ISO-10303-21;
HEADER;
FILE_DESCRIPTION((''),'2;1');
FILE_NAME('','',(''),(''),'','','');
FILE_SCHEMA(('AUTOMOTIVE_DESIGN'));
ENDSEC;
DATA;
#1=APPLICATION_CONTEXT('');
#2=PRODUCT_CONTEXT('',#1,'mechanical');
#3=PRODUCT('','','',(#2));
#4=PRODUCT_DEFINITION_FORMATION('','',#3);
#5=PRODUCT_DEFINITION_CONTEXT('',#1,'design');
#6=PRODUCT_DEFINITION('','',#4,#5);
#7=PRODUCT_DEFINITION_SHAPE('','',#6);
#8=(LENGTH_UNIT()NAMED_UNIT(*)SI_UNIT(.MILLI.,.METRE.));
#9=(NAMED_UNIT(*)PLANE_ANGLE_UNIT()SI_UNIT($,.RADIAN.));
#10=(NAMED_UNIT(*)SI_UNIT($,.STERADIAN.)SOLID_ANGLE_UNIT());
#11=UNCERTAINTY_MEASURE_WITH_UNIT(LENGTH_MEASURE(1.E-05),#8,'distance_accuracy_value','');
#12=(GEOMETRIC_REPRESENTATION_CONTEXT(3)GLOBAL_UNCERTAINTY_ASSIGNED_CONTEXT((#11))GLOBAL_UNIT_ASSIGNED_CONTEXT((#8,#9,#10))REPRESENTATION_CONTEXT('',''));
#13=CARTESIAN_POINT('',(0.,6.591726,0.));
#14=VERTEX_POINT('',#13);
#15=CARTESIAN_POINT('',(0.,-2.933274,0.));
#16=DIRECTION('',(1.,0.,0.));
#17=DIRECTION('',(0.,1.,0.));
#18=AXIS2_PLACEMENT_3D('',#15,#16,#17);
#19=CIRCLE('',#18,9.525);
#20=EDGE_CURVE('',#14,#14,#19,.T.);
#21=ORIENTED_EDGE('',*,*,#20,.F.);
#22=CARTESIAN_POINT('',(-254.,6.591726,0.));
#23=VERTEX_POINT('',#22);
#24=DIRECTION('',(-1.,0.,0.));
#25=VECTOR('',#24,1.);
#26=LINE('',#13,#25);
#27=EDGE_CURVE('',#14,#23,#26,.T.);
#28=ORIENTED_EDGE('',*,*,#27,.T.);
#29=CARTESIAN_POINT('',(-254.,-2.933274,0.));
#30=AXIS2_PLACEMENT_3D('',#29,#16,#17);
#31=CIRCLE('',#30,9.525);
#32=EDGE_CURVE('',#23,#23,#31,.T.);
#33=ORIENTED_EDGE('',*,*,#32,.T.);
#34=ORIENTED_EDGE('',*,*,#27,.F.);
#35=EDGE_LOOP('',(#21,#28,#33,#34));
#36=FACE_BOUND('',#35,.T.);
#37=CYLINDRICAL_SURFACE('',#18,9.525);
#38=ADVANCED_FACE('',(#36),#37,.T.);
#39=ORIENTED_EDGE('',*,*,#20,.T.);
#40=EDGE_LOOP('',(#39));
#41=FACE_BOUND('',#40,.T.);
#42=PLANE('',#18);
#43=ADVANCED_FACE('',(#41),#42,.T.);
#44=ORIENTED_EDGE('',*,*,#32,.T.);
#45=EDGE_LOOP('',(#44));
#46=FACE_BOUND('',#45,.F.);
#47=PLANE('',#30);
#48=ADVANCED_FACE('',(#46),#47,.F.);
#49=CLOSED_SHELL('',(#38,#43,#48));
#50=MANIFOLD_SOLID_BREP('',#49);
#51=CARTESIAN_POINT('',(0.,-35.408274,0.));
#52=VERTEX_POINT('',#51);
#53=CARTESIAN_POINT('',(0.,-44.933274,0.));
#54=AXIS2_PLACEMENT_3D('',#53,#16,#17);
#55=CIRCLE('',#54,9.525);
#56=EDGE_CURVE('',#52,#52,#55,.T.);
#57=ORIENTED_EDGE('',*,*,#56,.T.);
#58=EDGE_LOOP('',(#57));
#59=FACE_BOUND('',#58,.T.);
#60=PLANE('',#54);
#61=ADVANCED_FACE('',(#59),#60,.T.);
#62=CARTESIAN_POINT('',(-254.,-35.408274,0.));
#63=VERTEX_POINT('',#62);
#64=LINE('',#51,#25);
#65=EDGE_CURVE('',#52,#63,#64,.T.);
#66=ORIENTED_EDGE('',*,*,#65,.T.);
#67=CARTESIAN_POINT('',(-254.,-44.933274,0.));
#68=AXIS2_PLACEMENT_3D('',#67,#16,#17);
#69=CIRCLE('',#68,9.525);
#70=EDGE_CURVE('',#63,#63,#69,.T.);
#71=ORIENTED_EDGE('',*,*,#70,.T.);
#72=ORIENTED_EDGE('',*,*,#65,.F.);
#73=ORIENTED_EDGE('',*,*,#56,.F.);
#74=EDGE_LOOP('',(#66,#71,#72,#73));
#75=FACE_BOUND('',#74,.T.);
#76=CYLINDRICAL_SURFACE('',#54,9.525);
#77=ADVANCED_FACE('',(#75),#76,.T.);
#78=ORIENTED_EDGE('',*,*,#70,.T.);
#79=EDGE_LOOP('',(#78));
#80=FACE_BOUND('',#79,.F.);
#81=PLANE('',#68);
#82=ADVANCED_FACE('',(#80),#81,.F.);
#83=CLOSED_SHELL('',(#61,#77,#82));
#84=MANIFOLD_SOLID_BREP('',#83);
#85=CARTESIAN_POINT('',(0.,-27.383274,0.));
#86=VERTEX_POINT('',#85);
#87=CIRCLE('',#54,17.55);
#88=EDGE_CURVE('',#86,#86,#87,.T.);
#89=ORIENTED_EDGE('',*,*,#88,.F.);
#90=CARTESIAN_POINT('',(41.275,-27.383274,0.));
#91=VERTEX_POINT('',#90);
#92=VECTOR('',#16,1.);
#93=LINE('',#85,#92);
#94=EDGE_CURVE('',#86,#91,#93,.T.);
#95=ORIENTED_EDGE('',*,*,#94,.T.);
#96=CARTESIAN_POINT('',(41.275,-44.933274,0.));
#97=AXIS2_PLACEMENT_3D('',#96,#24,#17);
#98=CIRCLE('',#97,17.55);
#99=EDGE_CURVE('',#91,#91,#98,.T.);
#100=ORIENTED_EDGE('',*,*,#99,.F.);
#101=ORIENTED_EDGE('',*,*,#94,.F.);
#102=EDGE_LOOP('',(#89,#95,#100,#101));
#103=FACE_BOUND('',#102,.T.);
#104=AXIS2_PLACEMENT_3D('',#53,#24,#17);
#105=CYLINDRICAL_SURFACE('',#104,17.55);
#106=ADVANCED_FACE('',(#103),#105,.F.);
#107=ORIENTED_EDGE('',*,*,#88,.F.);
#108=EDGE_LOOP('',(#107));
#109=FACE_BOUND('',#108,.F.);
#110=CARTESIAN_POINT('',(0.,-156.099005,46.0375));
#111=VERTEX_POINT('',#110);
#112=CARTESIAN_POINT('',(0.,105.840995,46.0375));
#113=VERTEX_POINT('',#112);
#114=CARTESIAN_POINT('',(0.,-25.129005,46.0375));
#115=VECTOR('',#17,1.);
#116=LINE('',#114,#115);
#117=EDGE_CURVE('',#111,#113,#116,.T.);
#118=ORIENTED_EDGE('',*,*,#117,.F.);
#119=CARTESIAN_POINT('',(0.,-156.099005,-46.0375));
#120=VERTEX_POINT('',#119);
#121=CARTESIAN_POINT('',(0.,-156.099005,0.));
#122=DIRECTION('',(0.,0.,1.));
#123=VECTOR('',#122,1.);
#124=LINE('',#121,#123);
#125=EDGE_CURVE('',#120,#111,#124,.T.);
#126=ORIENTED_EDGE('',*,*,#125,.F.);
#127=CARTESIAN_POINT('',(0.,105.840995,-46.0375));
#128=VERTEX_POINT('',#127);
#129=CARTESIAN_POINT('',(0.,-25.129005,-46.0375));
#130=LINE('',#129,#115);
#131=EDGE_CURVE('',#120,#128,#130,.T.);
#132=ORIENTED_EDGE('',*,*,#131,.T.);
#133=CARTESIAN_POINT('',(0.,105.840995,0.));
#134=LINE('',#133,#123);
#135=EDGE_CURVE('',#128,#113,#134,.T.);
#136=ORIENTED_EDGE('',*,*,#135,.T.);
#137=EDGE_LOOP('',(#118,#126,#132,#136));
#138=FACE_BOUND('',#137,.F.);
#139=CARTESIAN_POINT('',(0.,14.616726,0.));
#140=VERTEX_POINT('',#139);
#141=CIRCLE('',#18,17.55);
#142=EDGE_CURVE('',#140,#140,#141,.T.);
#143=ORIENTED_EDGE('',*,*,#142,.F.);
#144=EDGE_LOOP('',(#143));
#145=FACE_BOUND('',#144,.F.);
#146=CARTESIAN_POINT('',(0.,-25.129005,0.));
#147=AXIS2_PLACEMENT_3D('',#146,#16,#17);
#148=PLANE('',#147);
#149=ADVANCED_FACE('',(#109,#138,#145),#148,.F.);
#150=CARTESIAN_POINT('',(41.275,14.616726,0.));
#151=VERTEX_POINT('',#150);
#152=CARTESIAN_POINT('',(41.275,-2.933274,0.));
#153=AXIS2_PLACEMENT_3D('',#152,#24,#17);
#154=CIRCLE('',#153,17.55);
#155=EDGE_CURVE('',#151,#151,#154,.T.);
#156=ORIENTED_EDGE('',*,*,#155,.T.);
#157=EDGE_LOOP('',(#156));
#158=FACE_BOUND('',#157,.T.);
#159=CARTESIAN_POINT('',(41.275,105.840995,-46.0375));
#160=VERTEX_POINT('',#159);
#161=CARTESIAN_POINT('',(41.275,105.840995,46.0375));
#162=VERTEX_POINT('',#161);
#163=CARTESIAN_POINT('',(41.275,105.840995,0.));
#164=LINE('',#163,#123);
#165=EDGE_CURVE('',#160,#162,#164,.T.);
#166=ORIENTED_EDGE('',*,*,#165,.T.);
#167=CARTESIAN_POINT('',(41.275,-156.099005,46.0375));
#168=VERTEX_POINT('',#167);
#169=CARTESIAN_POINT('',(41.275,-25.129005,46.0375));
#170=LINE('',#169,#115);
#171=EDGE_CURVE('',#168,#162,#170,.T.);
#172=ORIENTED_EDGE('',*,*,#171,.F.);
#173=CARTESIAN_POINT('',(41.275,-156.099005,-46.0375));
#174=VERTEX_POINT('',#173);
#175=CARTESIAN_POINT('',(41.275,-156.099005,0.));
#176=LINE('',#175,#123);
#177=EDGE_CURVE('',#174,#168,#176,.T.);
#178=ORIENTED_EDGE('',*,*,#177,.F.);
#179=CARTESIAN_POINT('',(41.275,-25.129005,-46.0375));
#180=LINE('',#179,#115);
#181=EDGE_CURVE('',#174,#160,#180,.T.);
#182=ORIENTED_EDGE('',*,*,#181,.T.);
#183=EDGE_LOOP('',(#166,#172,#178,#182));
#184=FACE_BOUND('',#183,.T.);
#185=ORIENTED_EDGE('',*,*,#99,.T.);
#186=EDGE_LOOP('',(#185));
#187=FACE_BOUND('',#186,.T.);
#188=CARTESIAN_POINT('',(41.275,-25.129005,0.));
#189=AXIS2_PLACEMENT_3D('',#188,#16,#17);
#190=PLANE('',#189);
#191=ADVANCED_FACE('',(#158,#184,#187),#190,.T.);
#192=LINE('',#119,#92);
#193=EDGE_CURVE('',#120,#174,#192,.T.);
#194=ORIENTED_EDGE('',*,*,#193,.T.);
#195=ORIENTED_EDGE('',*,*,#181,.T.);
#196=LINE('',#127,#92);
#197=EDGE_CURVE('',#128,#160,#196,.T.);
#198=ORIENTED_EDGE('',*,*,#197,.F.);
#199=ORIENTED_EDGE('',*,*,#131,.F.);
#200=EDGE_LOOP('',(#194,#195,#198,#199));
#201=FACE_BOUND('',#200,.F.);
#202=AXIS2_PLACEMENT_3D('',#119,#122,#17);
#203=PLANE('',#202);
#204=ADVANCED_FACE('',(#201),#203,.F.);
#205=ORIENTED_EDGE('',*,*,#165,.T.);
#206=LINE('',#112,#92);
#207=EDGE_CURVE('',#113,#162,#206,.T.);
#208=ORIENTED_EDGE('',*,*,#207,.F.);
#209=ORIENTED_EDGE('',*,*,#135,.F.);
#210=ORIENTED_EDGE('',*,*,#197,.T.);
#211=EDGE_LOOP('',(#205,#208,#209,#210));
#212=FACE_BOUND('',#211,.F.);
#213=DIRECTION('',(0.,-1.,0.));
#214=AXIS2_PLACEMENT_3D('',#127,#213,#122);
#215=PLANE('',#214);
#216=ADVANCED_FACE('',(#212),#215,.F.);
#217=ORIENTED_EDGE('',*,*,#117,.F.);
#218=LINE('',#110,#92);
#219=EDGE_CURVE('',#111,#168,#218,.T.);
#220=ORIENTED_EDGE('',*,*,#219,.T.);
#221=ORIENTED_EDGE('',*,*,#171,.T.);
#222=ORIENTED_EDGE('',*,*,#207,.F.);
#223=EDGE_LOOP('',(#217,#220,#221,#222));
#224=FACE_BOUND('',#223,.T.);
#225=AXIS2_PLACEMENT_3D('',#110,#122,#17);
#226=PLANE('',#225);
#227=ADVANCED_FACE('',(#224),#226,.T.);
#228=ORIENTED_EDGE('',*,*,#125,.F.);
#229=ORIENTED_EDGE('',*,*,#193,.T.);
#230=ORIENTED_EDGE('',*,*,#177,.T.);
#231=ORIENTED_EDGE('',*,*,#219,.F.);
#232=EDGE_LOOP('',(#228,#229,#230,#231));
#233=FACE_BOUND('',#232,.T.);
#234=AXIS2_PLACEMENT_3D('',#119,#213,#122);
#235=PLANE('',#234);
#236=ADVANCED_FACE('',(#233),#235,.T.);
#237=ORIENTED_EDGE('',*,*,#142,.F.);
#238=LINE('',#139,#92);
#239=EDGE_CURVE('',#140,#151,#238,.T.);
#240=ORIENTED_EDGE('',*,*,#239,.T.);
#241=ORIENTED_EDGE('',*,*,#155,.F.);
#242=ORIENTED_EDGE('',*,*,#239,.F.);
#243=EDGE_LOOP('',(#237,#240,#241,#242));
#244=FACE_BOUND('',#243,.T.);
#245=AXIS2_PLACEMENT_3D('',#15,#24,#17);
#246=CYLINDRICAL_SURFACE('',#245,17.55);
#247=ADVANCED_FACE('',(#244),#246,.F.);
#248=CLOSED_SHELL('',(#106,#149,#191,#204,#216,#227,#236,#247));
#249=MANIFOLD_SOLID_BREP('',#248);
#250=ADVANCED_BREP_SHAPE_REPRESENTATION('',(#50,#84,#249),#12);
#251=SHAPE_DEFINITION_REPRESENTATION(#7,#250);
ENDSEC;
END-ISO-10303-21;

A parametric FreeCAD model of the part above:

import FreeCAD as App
import Part
import Sketcher

V = App.Vector
Q = App.Units.Quantity

doc = App.newDocument("Part")
body = doc.addObject("PartDesign::Body", "Body")
body.AllowCompound = True

sketch1 = body.newObject("Sketcher::SketchObject", "Sketch")
sketch1.AttachmentSupport = (doc.getObject("YZ_Plane"), [""])
sketch1.MapMode = "FlatFace"
sketch1.addGeometry([
    Part.Circle(V(-45, 0, 0), V(0, 0, 1), 10),
    Part.Circle(V(-3, 0, 0), V(0, 0, 1), 10),
], False)
sketch1.addConstraint([
    Sketcher.Constraint("Equal", 0, 1),
    Sketcher.Constraint("PointOnObject", 0, 3, -1),
    Sketcher.Constraint("PointOnObject", 1, 3, -1),
    Sketcher.Constraint("Diameter", 0, Q("0.75 in")),
    Sketcher.Constraint("DistanceX", 0, 3, 1, 3, 42.0),
    Sketcher.Constraint("DistanceX", 0, 3, -1, 1, 44.933274),
])
pad1 = body.newObject("PartDesign::Pad", "Pad")
pad1.Profile = sketch1
pad1.Length = Q("10 in")
pad1.Reversed = True
body2 = doc.addObject("PartDesign::Body", "Body001")

sketch2 = body2.newObject("Sketcher::SketchObject", "Sketch001")
sketch2.AttachmentSupport = (doc.getObject("YZ_Plane001"), [""])
sketch2.MapMode = "FlatFace"
sketch2.addGeometry([
    Part.LineSegment(V(-156, 46, 0), V(-156, -46, 0)),
    Part.LineSegment(V(-156, -46, 0), V(106, -46, 0)),
    Part.LineSegment(V(106, -46, 0), V(106, 46, 0)),
    Part.LineSegment(V(106, 46, 0), V(-156, 46, 0)),
], False)
sketch2.addConstraint([
    Sketcher.Constraint("Coincident", 0, 2, 1, 1),
    Sketcher.Constraint("Coincident", 1, 2, 2, 1),
    Sketcher.Constraint("Coincident", 2, 2, 3, 1),
    Sketcher.Constraint("Coincident", 3, 2, 0, 1),
    Sketcher.Constraint("Vertical", 0),
    Sketcher.Constraint("Horizontal", 1),
    Sketcher.Constraint("Vertical", 2),
    Sketcher.Constraint("Horizontal", 3),
    Sketcher.Constraint("DistanceY", 0, 2, 0, 1, Q("3.625 in")),
    Sketcher.Constraint("DistanceY", 0, 2, -1, 1, Q("1.8125 in")),
    Sketcher.Constraint("DistanceX", 1, 1, 1, 2, 261.94),
    Sketcher.Constraint("DistanceX", 0, 2, -1, 1, 156.099005),
])
pad2 = body2.newObject("PartDesign::Pad", "Pad001")
pad2.Profile = sketch2
pad2.Length = Q("1.625 in")

sketch3 = body2.newObject("Sketcher::SketchObject", "Sketch002")
sketch3.AttachmentSupport = (doc.getObject("YZ_Plane001"), [""])
sketch3.MapMode = "FlatFace"
sketch3.addGeometry([
    Part.Circle(V(-45, 0, 0), V(0, 0, 1), 18),
    Part.Circle(V(-3, 0, 0), V(0, 0, 1), 18),
], False)
sketch3.addConstraint([
    Sketcher.Constraint("Equal", 0, 1),
    Sketcher.Constraint("PointOnObject", 0, 3, -1),
    Sketcher.Constraint("PointOnObject", 1, 3, -1),
    Sketcher.Constraint("Diameter", 0, 35.1),
    Sketcher.Constraint("DistanceX", 0, 3, 1, 3, 42.0),
    Sketcher.Constraint("DistanceX", 0, 3, -1, 1, 44.933274),
])
pocket1 = body2.newObject("PartDesign::Pocket", "Pocket")
pocket1.Profile = sketch3
pocket1.Length = 65.2
pocket1.Reversed = True

doc.recompute()
